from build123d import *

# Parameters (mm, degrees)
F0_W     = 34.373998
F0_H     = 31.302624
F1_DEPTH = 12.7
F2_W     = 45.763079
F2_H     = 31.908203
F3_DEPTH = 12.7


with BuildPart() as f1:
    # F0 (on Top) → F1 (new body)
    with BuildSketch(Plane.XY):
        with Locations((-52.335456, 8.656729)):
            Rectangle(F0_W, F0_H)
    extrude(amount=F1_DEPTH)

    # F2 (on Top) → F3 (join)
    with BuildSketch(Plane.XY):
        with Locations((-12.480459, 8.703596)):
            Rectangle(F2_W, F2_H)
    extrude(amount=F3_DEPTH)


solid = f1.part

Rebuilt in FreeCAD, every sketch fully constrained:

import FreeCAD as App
import Part
import Sketcher
from FreeCAD import Vector

doc = App.newDocument("Part")
params = doc.addObject("Spreadsheet::Sheet", "Params")
for row, (alias, value) in enumerate([
    ("pad1_length", "0.5 in"),
    ("pad2_length", "0.5 in"),
], start=1):
    params.set(f"A{row}", alias)
    params.set(f"B{row}", "=" + value)
    params.setAlias(f"B{row}", alias)

body = doc.addObject("PartDesign::Body", "Body")

# Sketch on XY plane
sketch1 = body.newObject("Sketcher::SketchObject", "Sketch")
sketch1.AttachmentSupport = (doc.getObject("XY_Plane"), [""])
sketch1.MapMode = "FlatFace"
sketch1.addGeometry(Part.LineSegment(Vector(-69.522455, 24.308041, 0), Vector(-69.522455, -6.994583, 0)), False)
sketch1.addGeometry(Part.LineSegment(Vector(-69.522455, -6.994583, 0), Vector(-35.148457, -6.994583, 0)), False)
sketch1.addGeometry(Part.LineSegment(Vector(-35.148457, -6.994583, 0), Vector(-35.148457, 24.308041, 0)), False)
sketch1.addGeometry(Part.LineSegment(Vector(-35.148457, 24.308041, 0), Vector(-69.522455, 24.308041, 0)), False)
sketch1.addConstraint(Sketcher.Constraint("Coincident", 0, 2, 1, 1))
sketch1.addConstraint(Sketcher.Constraint("Coincident", 1, 2, 2, 1))
sketch1.addConstraint(Sketcher.Constraint("Coincident", 2, 2, 3, 1))
sketch1.addConstraint(Sketcher.Constraint("Coincident", 3, 2, 0, 1))
sketch1.addConstraint(Sketcher.Constraint("Vertical", 0))
sketch1.addConstraint(Sketcher.Constraint("Horizontal", 1))
sketch1.addConstraint(Sketcher.Constraint("Vertical", 2))
sketch1.addConstraint(Sketcher.Constraint("Horizontal", 3))
sketch1.addConstraint(Sketcher.Constraint("DistanceX", 1, 1, 1, 2, 34.373998))
sketch1.addConstraint(Sketcher.Constraint("DistanceY", 0, 2, 0, 1, 31.302624))
sketch1.addConstraint(Sketcher.Constraint("DistanceY", -1, 1, 2, 2, 24.308041))
sketch1.addConstraint(Sketcher.Constraint("DistanceX", 0, 2, -1, 1, 69.522455))
pad1 = body.newObject("PartDesign::Pad", "Pad")
pad1.Profile = sketch1
pad1.setExpression("Length", "Params.pad1_length")

# Sketch on XY plane
sketch2 = body.newObject("Sketcher::SketchObject", "Sketch001")
sketch2.AttachmentSupport = (doc.getObject("XY_Plane"), [""])
sketch2.MapMode = "FlatFace"
sketch2.addGeometry(Part.LineSegment(Vector(-35.361998, 24.657698, 0), Vector(-35.361998, -7.250506, 0)), False)
sketch2.addGeometry(Part.LineSegment(Vector(-35.361998, -7.250506, 0), Vector(10.401081, -7.250506, 0)), False)
sketch2.addGeometry(Part.LineSegment(Vector(10.401081, -7.250506, 0), Vector(10.401081, 24.657698, 0)), False)
sketch2.addGeometry(Part.LineSegment(Vector(10.401081, 24.657698, 0), Vector(-35.361998, 24.657698, 0)), False)
sketch2.addConstraint(Sketcher.Constraint("Coincident", 0, 2, 1, 1))
sketch2.addConstraint(Sketcher.Constraint("Coincident", 1, 2, 2, 1))
sketch2.addConstraint(Sketcher.Constraint("Coincident", 2, 2, 3, 1))
sketch2.addConstraint(Sketcher.Constraint("Coincident", 3, 2, 0, 1))
sketch2.addConstraint(Sketcher.Constraint("Vertical", 0))
sketch2.addConstraint(Sketcher.Constraint("Horizontal", 1))
sketch2.addConstraint(Sketcher.Constraint("Vertical", 2))
sketch2.addConstraint(Sketcher.Constraint("Horizontal", 3))
sketch2.addConstraint(Sketcher.Constraint("DistanceX", 1, 1, 1, 2, 45.763079))
sketch2.addConstraint(Sketcher.Constraint("DistanceX", 0, 2, -1, 1, 35.361998))
sketch2.addConstraint(Sketcher.Constraint("DistanceY", 0, 2, 0, 1, 31.908203))
sketch2.addConstraint(Sketcher.Constraint("DistanceY", 0, 2, -1, 1, 7.250506))
pad2 = body.newObject("PartDesign::Pad", "Pad001")
pad2.Profile = sketch2
pad2.setExpression("Length", "Params.pad2_length")

doc.recompute()
